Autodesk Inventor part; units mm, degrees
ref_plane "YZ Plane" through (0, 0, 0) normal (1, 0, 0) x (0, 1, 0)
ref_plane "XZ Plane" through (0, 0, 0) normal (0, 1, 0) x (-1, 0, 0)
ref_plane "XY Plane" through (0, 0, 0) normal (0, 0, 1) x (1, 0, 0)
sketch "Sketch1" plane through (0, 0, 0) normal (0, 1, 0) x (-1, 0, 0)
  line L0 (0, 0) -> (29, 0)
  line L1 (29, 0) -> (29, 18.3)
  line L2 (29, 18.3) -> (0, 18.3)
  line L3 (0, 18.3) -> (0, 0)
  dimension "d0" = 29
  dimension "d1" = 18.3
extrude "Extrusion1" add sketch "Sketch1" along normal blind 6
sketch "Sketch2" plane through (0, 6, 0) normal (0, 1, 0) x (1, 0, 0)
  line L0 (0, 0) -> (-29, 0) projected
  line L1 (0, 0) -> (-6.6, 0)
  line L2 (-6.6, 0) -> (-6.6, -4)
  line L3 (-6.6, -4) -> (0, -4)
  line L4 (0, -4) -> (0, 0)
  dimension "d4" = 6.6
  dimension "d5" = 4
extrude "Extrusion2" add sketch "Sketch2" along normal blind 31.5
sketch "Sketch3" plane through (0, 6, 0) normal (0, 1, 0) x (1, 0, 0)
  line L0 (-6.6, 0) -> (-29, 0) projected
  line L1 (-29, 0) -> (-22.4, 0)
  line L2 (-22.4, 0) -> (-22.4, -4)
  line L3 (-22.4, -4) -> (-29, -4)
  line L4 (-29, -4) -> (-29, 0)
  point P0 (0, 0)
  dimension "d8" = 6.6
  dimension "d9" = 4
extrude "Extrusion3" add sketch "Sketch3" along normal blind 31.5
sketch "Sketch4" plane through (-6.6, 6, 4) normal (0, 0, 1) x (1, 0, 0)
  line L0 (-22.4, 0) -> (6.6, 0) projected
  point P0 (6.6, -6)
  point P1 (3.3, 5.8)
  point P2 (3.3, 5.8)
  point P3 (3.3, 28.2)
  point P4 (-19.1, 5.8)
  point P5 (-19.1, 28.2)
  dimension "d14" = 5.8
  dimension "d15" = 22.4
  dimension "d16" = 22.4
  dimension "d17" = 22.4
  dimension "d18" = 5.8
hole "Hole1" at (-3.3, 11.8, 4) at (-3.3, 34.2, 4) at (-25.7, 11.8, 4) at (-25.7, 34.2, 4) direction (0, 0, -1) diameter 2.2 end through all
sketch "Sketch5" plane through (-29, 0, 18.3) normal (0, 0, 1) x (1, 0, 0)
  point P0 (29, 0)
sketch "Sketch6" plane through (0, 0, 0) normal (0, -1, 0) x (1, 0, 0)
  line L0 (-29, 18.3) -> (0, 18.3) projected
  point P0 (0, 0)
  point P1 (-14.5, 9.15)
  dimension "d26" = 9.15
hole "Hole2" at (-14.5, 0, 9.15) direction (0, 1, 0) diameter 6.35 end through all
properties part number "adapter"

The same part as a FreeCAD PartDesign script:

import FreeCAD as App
import Part
import Sketcher

V = App.Vector
Q = App.Units.Quantity


def add_polygon(sketch, points):
    """Adds a closed chain of lines whose ends are joined by coincident constraints."""
    first, n = sketch.GeometryCount, len(points)
    for a, b in zip(points, points[1:] + points[:1]):
        sketch.addGeometry(Part.LineSegment(App.Vector(*a, 0), App.Vector(*b, 0)), False)
    for i in range(n):
        sketch.addConstraint(Sketcher.Constraint("Coincident", first + i, 2, first + (i + 1) % n, 1))

doc = App.newDocument("Part")
params = doc.addObject("Spreadsheet::Sheet", "Params")
for row, (alias, value) in enumerate([
    ("sketch1_width", "29 mm"),
    ("sketch1_height", "18.3 mm"),
    ("pad1_length", "6 mm"),
    ("sketch2_height", "4 mm"),
    ("sketch2_width", "6.6 mm"),
    ("pad2_length", "31.5 mm"),
    ("sketch3_height", "4 mm"),
    ("sketch3_width", "6.6 mm"),
    ("pad3_length", "31.5 mm"),
    ("sketch4_diameter", "2.2 mm"),
    ("hole_diameter", "2.2 mm"),
    ("sketch5_diameter", "6.35 mm"),
    ("hole2_diameter", "6.35 mm"),
], start=1):
    params.set(f"A{row}", alias)
    params.set(f"B{row}", "=" + value)
    params.setAlias(f"B{row}", alias)

body = doc.addObject("PartDesign::Body", "Body")

sketch1 = body.newObject("Sketcher::SketchObject", "Sketch")
sketch1.AttachmentSupport = (doc.getObject("XZ_Plane"), [""])
sketch1.MapMode = "FlatFace"
add_polygon(sketch1, [(0, 18.3), (0, 0), (-29, 0), (-29, 18.3)])
sketch1.addConstraint([
    Sketcher.Constraint("Vertical", 0),
    Sketcher.Constraint("Horizontal", 1),
    Sketcher.Constraint("Vertical", 2),
    Sketcher.Constraint("Horizontal", 3),
    Sketcher.Constraint("Coincident", 0, 2, -1, 1),
    Sketcher.Constraint("DistanceX", 1, 2, 1, 1, Q("29 mm")),
    Sketcher.Constraint("DistanceY", 0, 2, 0, 1, Q("18.3 mm")),
])
sketch1.setExpression("Constraints[9]", "Params.sketch1_width")
sketch1.setExpression("Constraints[10]", "Params.sketch1_height")
pad1 = body.newObject("PartDesign::Pad", "Pad")
pad1.Profile = sketch1
pad1.setExpression("Length", "Params.pad1_length")
pad1.Reversed = True

sketch2 = body.newObject("Sketcher::SketchObject", "Sketch001")
sketch2.AttachmentSupport = (doc.getObject("XZ_Plane"), [""])
sketch2.MapMode = "FlatFace"
sketch2.AttachmentOffset = App.Placement(V(0, 0, -6), App.Rotation())
add_polygon(sketch2, [(0, 4), (0, 0), (-6.6, 0), (-6.6, 4)])
sketch2.addConstraint([
    Sketcher.Constraint("Vertical", 0),
    Sketcher.Constraint("Horizontal", 1),
    Sketcher.Constraint("Vertical", 2),
    Sketcher.Constraint("Horizontal", 3),
    Sketcher.Constraint("Coincident", 0, 2, -1, 1),
    Sketcher.Constraint("DistanceY", 0, 2, 0, 1, Q("4 mm")),
    Sketcher.Constraint("DistanceX", 1, 2, 1, 1, Q("6.6 mm")),
])
sketch2.setExpression("Constraints[9]", "Params.sketch2_height")
sketch2.setExpression("Constraints[10]", "Params.sketch2_width")
pad2 = body.newObject("PartDesign::Pad", "Pad001")
pad2.Profile = sketch2
pad2.setExpression("Length", "Params.pad2_length")
pad2.Reversed = True

sketch3 = body.newObject("Sketcher::SketchObject", "Sketch002")
sketch3.AttachmentSupport = (doc.getObject("XZ_Plane"), [""])
sketch3.MapMode = "FlatFace"
sketch3.AttachmentOffset = App.Placement(V(0, 0, -6), App.Rotation())
add_polygon(sketch3, [(-22.4, 4), (-22.4, 0), (-29, 0), (-29, 4)])
sketch3.addConstraint([
    Sketcher.Constraint("Vertical", 0),
    Sketcher.Constraint("Horizontal", 1),
    Sketcher.Constraint("Vertical", 2),
    Sketcher.Constraint("Horizontal", 3),
    Sketcher.Constraint("PointOnObject", 0, 2, -1),
    Sketcher.Constraint("DistanceY", 0, 2, 0, 1, Q("4 mm")),
    Sketcher.Constraint("DistanceX", 1, 2, 1, 1, Q("6.6 mm")),
    Sketcher.Constraint("DistanceX", 1, 2, -1, 1, Q("29 mm")),
])
sketch3.setExpression("Constraints[9]", "Params.sketch3_height")
sketch3.setExpression("Constraints[10]", "Params.sketch3_width")
pad3 = body.newObject("PartDesign::Pad", "Pad002")
pad3.Profile = sketch3
pad3.setExpression("Length", "Params.pad3_length")
pad3.Reversed = True

sketch4 = body.newObject("Sketcher::SketchObject", "Sketch003")
sketch4.AttachmentSupport = (doc.getObject("XY_Plane"), [""])
sketch4.MapMode = "FlatFace"
sketch4.AttachmentOffset = App.Placement(V(0, 0, 4), App.Rotation())
sketch4.addGeometry([
    Part.Circle(V(-3.3, 11.8, 0), V(0, 0, 1), 1.1),
    Part.Circle(V(-3.3, 34.2, 0), V(0, 0, 1), 1.1),
    Part.Circle(V(-25.7, 11.8, 0), V(0, 0, 1), 1.1),
    Part.Circle(V(-25.7, 34.2, 0), V(0, 0, 1), 1.1),
], False)
sketch4.addConstraint([
    Sketcher.Constraint("Equal", 0, 1),
    Sketcher.Constraint("Equal", 1, 2),
    Sketcher.Constraint("Equal", 2, 3),
    Sketcher.Constraint("Horizontal", 0, 3, 2, 3),
    Sketcher.Constraint("Horizontal", 1, 3, 3, 3),
    Sketcher.Constraint("Vertical", 0, 3, 1, 3),
    Sketcher.Constraint("Vertical", 2, 3, 3, 3),
    Sketcher.Constraint("Diameter", 0, Q("2.2 mm")),
    Sketcher.Constraint("DistanceX", 0, 3, -1, 1, Q("3.3 mm")),
    Sketcher.Constraint("DistanceY", -1, 1, 0, 3, Q("11.8 mm")),
    Sketcher.Constraint("DistanceY", -1, 1, 1, 3, Q("34.2 mm")),
    Sketcher.Constraint("DistanceX", 2, 3, -1, 1, Q("25.7 mm")),
])
sketch4.setExpression("Constraints[7]", "Params.sketch4_diameter")
doc.recompute()
hole = body.newObject("PartDesign::Hole", "Hole")
hole.Profile = sketch4
hole.ThreadType = "None"
hole.setExpression("Diameter", "Params.hole_diameter")
hole.DepthType = "ThroughAll"

sketch5 = body.newObject("Sketcher::SketchObject", "Sketch004")
sketch5.AttachmentSupport = (doc.getObject("XZ_Plane"), [""])
sketch5.MapMode = "FlatFace"
sketch5.addGeometry(Part.Circle(V(-14.5, 9.15, 0), V(0, 0, 1), 3.175), False)
sketch5.addConstraint([
    Sketcher.Constraint("Diameter", 0, Q("6.35 mm")),
    Sketcher.Constraint("DistanceX", 0, 3, -1, 1, Q("14.5 mm")),
    Sketcher.Constraint("DistanceY", -1, 1, 0, 3, Q("9.15 mm")),
])
sketch5.setExpression("Constraints[0]", "Params.sketch5_diameter")
doc.recompute()
hole2 = body.newObject("PartDesign::Hole", "Hole001")
hole2.Profile = sketch5
hole2.ThreadType = "None"
hole2.setExpression("Diameter", "Params.hole2_diameter")
hole2.DepthType = "ThroughAll"

doc.recompute()
